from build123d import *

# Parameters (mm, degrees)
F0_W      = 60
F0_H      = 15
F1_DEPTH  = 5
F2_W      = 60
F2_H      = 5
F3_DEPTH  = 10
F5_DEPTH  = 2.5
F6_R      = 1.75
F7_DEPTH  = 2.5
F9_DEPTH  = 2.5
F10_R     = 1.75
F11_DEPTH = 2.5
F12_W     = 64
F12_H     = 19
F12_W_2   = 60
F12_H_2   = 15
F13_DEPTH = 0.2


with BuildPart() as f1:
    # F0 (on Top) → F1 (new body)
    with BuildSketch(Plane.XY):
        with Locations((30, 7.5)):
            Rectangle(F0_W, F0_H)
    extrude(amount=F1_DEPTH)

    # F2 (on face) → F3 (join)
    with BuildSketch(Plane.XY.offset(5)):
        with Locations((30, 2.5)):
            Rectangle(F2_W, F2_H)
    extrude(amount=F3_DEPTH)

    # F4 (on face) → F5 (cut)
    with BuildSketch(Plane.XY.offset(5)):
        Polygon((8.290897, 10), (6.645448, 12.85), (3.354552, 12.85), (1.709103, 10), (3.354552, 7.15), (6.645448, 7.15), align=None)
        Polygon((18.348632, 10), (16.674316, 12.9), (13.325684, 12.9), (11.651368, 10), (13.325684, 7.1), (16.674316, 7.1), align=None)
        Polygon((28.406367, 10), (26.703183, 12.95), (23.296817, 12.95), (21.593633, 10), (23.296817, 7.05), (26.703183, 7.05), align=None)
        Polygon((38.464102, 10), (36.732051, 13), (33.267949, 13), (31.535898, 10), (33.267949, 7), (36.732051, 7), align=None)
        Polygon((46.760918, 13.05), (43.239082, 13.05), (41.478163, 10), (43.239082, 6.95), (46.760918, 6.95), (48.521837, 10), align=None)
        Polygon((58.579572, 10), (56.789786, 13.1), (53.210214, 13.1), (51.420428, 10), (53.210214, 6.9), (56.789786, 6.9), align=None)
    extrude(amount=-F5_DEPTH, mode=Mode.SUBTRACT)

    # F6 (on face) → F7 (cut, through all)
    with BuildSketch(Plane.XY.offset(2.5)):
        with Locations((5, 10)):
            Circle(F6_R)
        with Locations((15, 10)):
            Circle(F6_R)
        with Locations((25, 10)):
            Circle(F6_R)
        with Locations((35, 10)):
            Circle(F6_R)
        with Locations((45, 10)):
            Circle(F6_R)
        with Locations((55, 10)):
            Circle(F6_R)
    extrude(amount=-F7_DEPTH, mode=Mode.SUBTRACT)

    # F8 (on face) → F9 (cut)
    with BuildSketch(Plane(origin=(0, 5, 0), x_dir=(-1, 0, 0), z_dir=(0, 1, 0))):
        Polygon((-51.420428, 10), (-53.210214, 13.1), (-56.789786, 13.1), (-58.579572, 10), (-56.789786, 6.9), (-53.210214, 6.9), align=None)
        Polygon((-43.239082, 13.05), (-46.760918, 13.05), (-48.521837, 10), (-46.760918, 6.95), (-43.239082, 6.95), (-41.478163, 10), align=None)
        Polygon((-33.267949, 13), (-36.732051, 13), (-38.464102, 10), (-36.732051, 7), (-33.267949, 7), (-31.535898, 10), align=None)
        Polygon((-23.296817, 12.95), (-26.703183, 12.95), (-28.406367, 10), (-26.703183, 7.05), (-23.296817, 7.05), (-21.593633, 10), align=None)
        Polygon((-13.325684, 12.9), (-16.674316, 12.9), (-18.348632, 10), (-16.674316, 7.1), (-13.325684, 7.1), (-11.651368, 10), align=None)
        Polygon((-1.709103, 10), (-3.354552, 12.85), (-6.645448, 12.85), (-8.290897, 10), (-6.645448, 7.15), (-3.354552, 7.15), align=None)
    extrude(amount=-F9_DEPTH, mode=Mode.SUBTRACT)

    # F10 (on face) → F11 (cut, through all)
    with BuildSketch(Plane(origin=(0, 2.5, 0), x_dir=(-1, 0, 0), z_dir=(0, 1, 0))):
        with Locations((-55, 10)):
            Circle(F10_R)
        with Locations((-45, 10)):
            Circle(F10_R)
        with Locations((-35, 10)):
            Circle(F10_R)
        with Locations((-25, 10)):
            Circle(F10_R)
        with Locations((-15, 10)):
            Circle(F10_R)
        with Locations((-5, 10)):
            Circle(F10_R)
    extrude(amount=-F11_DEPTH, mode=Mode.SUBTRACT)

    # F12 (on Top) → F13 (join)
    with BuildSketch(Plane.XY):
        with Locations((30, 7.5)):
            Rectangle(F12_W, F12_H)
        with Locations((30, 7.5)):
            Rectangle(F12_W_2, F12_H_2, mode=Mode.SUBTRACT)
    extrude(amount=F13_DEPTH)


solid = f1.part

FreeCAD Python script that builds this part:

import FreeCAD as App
import Part
import Sketcher
Q = App.Units.Quantity


def add_polygon(sketch, points):
    """Adds a closed chain of lines whose ends are joined by coincident constraints."""
    first, n = sketch.GeometryCount, len(points)
    for a, b in zip(points, points[1:] + points[:1]):
        sketch.addGeometry(Part.LineSegment(App.Vector(*a, 0), App.Vector(*b, 0)), False)
    for i in range(n):
        sketch.addConstraint(Sketcher.Constraint("Coincident", first + i, 2, first + (i + 1) % n, 1))

doc = App.newDocument("Part")
body = doc.addObject("PartDesign::Body", "Body")

# Sketch on XY plane
sketch1 = body.newObject("Sketcher::SketchObject", "Sketch")
sketch1.AttachmentSupport = (doc.getObject("XY_Plane"), [""])
sketch1.MapMode = "FlatFace"
add_polygon(sketch1, [(0, 15), (0, 0), (60, 0), (60, 15)])  # lines 0-3
sketch1.addConstraint([
    Sketcher.Constraint("Vertical", 0),
    Sketcher.Constraint("Horizontal", 1),
    Sketcher.Constraint("Vertical", 2),
    Sketcher.Constraint("Horizontal", 3),
    Sketcher.Constraint("Coincident", 0, 2, -1, 1),
    Sketcher.Constraint("DistanceX", 1, 1, 1, 2, Q("60 mm")),
    Sketcher.Constraint("DistanceY", 0, 2, 0, 1, Q("15 mm")),
])
pad1 = body.newObject("PartDesign::Pad", "Pad")
pad1.Profile = sketch1
pad1.Length = 5

# Sketch on XY plane
sketch2 = body.newObject("Sketcher::SketchObject", "Sketch001")
sketch2.AttachmentSupport = (doc.getObject("XY_Plane"), [""])
sketch2.MapMode = "FlatFace"
sketch2.AttachmentOffset = App.Placement(App.Vector(0, 0, 5), App.Rotation())
add_polygon(sketch2, [(0, 5), (0, 0), (60, 0), (60, 5)])  # lines 0-3
sketch2.addConstraint([
    Sketcher.Constraint("Vertical", 0),
    Sketcher.Constraint("Horizontal", 1),
    Sketcher.Constraint("Vertical", 2),
    Sketcher.Constraint("Horizontal", 3),
    Sketcher.Constraint("Coincident", 0, 2, -1, 1),
    Sketcher.Constraint("DistanceX", 1, 1, 1, 2, Q("60 mm")),
    Sketcher.Constraint("DistanceY", 0, 2, 0, 1, Q("5 mm")),
])
pad2 = body.newObject("PartDesign::Pad", "Pad001")
pad2.Profile = sketch2
pad2.Length = 10

# Sketch on XY plane
sketch3 = body.newObject("Sketcher::SketchObject", "Sketch002")
sketch3.AttachmentSupport = (doc.getObject("XY_Plane"), [""])
sketch3.MapMode = "FlatFace"
sketch3.AttachmentOffset = App.Placement(App.Vector(0, 0, 5), App.Rotation())
add_polygon(sketch3, [(8.3, 10), (6.6, 12.8), (3.4, 12.8), (1.7, 10), (3.4, 7.2), (6.6, 7.2)])  # lines 0-5
add_polygon(sketch3, [(18.3, 10), (16.7, 12.9), (13.3, 12.9), (11.7, 10), (13.3, 7.1), (16.7, 7.1)])  # lines 6-11
add_polygon(sketch3, [(28.4, 10), (26.7, 12.9), (23.3, 12.9), (21.6, 10), (23.3, 7), (26.7, 7)])  # lines 12-17
add_polygon(sketch3, [(38.5, 10), (36.7, 13), (33.3, 13), (31.5, 10), (33.3, 7), (36.7, 7)])  # lines 18-23
add_polygon(sketch3, [(46.8, 13.1), (43.2, 13.1), (41.5, 10), (43.2, 7), (46.8, 7), (48.5, 10)])  # lines 24-29
add_polygon(sketch3, [(58.6, 10), (56.8, 13.1), (53.2, 13.1), (51.4, 10), (53.2, 6.9), (56.8, 6.9)])  # lines 30-35
sketch3.addConstraint([
    Sketcher.Constraint("Horizontal", 1),
    Sketcher.Constraint("Horizontal", 4),
    Sketcher.Constraint("Horizontal", 7),
    Sketcher.Constraint("Horizontal", 10),
    Sketcher.Constraint("Horizontal", 13),
    Sketcher.Constraint("Horizontal", 16),
    Sketcher.Constraint("Horizontal", 19),
    Sketcher.Constraint("Horizontal", 22),
    Sketcher.Constraint("Horizontal", 24),
    Sketcher.Constraint("Horizontal", 27),
    Sketcher.Constraint("Horizontal", 31),
    Sketcher.Constraint("Horizontal", 34),
    Sketcher.Constraint("Parallel", 0, 3),
    Sketcher.Constraint("Parallel", 2, 5),
    Sketcher.Constraint("Parallel", 3, 6),
    Sketcher.Constraint("Parallel", 5, 8),
    Sketcher.Constraint("Parallel", 6, 9),
    Sketcher.Constraint("Parallel", 8, 11),
    Sketcher.Constraint("Parallel", 9, 12),
    Sketcher.Constraint("Parallel", 11, 14),
    Sketcher.Constraint("Parallel", 12, 15),
    Sketcher.Constraint("Parallel", 14, 17),
    Sketcher.Constraint("Parallel", 15, 18),
    Sketcher.Constraint("Parallel", 17, 20),
    Sketcher.Constraint("Parallel", 18, 21),
    Sketcher.Constraint("Parallel", 20, 23),
    Sketcher.Constraint("Parallel", 23, 25),
    Sketcher.Constraint("Parallel", 21, 26),
    Sketcher.Constraint("Parallel", 25, 28),
    Sketcher.Constraint("Parallel", 26, 29),
    Sketcher.Constraint("Parallel", 29, 30),
    Sketcher.Constraint("Parallel", 28, 32),
    Sketcher.Constraint("Parallel", 30, 33),
    Sketcher.Constraint("Parallel", 32, 35),
    Sketcher.Constraint("Horizontal", 2, 2, 5, 2),
    Sketcher.Constraint("Horizontal", 5, 2, 8, 2),
    Sketcher.Constraint("Horizontal", 8, 2, 11, 2),
    Sketcher.Constraint("Horizontal", 11, 2, 14, 2),
    Sketcher.Constraint("Horizontal", 14, 2, 17, 2),
    Sketcher.Constraint("Horizontal", 17, 2, 20, 2),
    Sketcher.Constraint("Horizontal", 20, 2, 23, 2),
    Sketcher.Constraint("Horizontal", 23, 2, 25, 2),
    Sketcher.Constraint("Horizontal", 25, 2, 28, 2),
    Sketcher.Constraint("Horizontal", 28, 2, 32, 2),
    Sketcher.Constraint("Horizontal", 32, 2, 35, 2),
    Sketcher.Constraint("Vertical", 1, 2, 3, 2),
    Sketcher.Constraint("Vertical", 0, 2, 4, 2),
    Sketcher.Constraint("Vertical", 7, 2, 9, 2),
    Sketcher.Constraint("Vertical", 13, 2, 15, 2),
    Sketcher.Constraint("Vertical", 19, 2, 21, 2),
    Sketcher.Constraint("Vertical", 24, 2, 26, 2),
    Sketcher.Constraint("Vertical", 31, 2, 33, 2),
    Sketcher.Constraint("Angle", 0, Q("120.000011 deg")),
    Sketcher.Constraint("DistanceY", -1, 1, 2, 2, Q("10 mm")),
    Sketcher.Constraint("DistanceY", -1, 1, 18, 2, Q("13 mm")),
    Sketcher.Constraint("DistanceY", -1, 1, 6, 2, Q("12.9 mm")),
    Sketcher.Constraint("DistanceY", -1, 1, 30, 2, Q("13.1 mm")),
    Sketcher.Constraint("DistanceY", 3, 2, 1, 2, Q("5.7 mm")),
    Sketcher.Constraint("DistanceY", 15, 2, 13, 2, Q("5.9 mm")),
    Sketcher.Constraint("DistanceY", 26, 2, 24, 2, Q("6.1 mm")),
    Sketcher.Constraint("DistanceX", 19, 2, 19, 1, Q("3.464102 mm")),
    Sketcher.Constraint("DistanceX", 11, 2, 14, 2, Q("3.245001 mm")),
    Sketcher.Constraint("DistanceX", 31, 2, 31, 1, Q("3.579572 mm")),
    Sketcher.Constraint("DistanceX", -1, 1, 23, 2, Q("38.464102 mm")),
    Sketcher.Constraint("DistanceX", 7, 2, 12, 2, Q("13.377499 mm")),
    Sketcher.Constraint("DistanceX", 1, 2, 1, 1, Q("3.290896 mm")),
    Sketcher.Constraint("DistanceX", 7, 2, 7, 1, Q("3.348632 mm")),
    Sketcher.Constraint("DistanceX", 24, 2, 24, 1, Q("3.521836 mm")),
    Sketcher.Constraint("DistanceX", -1, 1, 1, 2, Q("3.354552 mm")),
    Sketcher.Constraint("DistanceX", -1, 1, 11, 2, Q("18.348632 mm")),
    Sketcher.Constraint("DistanceX", 23, 2, 24, 2, Q("4.77498 mm")),
    Sketcher.Constraint("DistanceX", 28, 2, 30, 2, Q("8.267949 mm")),
])
pocket1 = body.newObject("PartDesign::Pocket", "Pocket")
pocket1.Profile = sketch3
pocket1.Length = 2.5

# Sketch on XY plane
sketch4 = body.newObject("Sketcher::SketchObject", "Sketch003")
sketch4.AttachmentSupport = (doc.getObject("XY_Plane"), [""])
sketch4.MapMode = "FlatFace"
sketch4.AttachmentOffset = App.Placement(App.Vector(0, 0, 2.5), App.Rotation())
sketch4.addGeometry([
    Part.Circle(App.Vector(5, 10, 0), App.Vector(0, 0, 1), 1.8),  # 0
    Part.Circle(App.Vector(15, 10, 0), App.Vector(0, 0, 1), 1.8),  # 1
    Part.Circle(App.Vector(25, 10, 0), App.Vector(0, 0, 1), 1.8),  # 2
    Part.Circle(App.Vector(35, 10, 0), App.Vector(0, 0, 1), 1.8),  # 3
    Part.Circle(App.Vector(45, 10, 0), App.Vector(0, 0, 1), 1.8),  # 4
    Part.Circle(App.Vector(55, 10, 0), App.Vector(0, 0, 1), 1.8),  # 5
], False)
sketch4.addConstraint([
    Sketcher.Constraint("Equal", 0, 1),
    Sketcher.Constraint("Equal", 1, 2),
    Sketcher.Constraint("Equal", 2, 3),
    Sketcher.Constraint("Equal", 3, 4),
    Sketcher.Constraint("Equal", 4, 5),
    Sketcher.Constraint("Horizontal", 0, 3, 1, 3),
    Sketcher.Constraint("Horizontal", 1, 3, 2, 3),
    Sketcher.Constraint("Horizontal", 2, 3, 3, 3),
    Sketcher.Constraint("Horizontal", 3, 3, 4, 3),
    Sketcher.Constraint("Horizontal", 4, 3, 5, 3),
    Sketcher.Constraint("Diameter", 0, Q("3.5 mm")),
    Sketcher.Constraint("DistanceX", -1, 1, 0, 3, Q("5 mm")),
    Sketcher.Constraint("DistanceY", -1, 1, 0, 3, Q("10 mm")),
    Sketcher.Constraint("DistanceX", -1, 1, 1, 3, Q("15 mm")),
    Sketcher.Constraint("DistanceX", -1, 1, 2, 3, Q("25 mm")),
    Sketcher.Constraint("DistanceX", -1, 1, 3, 3, Q("35 mm")),
    Sketcher.Constraint("DistanceX", -1, 1, 4, 3, Q("45 mm")),
    Sketcher.Constraint("DistanceX", -1, 1, 5, 3, Q("55 mm")),
])
pocket2 = body.newObject("PartDesign::Pocket", "Pocket001")
pocket2.Profile = sketch4
pocket2.Type = "ThroughAll"

# Sketch on XZ plane
sketch5 = body.newObject("Sketcher::SketchObject", "Sketch004")
sketch5.AttachmentSupport = (doc.getObject("XZ_Plane"), [""])
sketch5.MapMode = "FlatFace"
sketch5.AttachmentOffset = App.Placement(App.Vector(0, 0, -5), App.Rotation())
add_polygon(sketch5, [(51.4, 10), (53.2, 13.1), (56.8, 13.1), (58.6, 10), (56.8, 6.9), (53.2, 6.9)])  # lines 0-5
add_polygon(sketch5, [(43.2, 13.1), (46.8, 13.1), (48.5, 10), (46.8, 7), (43.2, 7), (41.5, 10)])  # lines 6-11
add_polygon(sketch5, [(33.3, 13), (36.7, 13), (38.5, 10), (36.7, 7), (33.3, 7), (31.5, 10)])  # lines 12-17
add_polygon(sketch5, [(23.3, 12.9), (26.7, 12.9), (28.4, 10), (26.7, 7), (23.3, 7), (21.6, 10)])  # lines 18-23
add_polygon(sketch5, [(13.3, 12.9), (16.7, 12.9), (18.3, 10), (16.7, 7.1), (13.3, 7.1), (11.7, 10)])  # lines 24-29
add_polygon(sketch5, [(1.7, 10), (3.4, 12.8), (6.6, 12.8), (8.3, 10), (6.6, 7.2), (3.4, 7.2)])  # lines 30-35
sketch5.addConstraint([
    Sketcher.Constraint("Horizontal", 1),
    Sketcher.Constraint("Horizontal", 4),
    Sketcher.Constraint("Horizontal", 6),
    Sketcher.Constraint("Horizontal", 9),
    Sketcher.Constraint("Horizontal", 12),
    Sketcher.Constraint("Horizontal", 15),
    Sketcher.Constraint("Horizontal", 18),
    Sketcher.Constraint("Horizontal", 21),
    Sketcher.Constraint("Horizontal", 24),
    Sketcher.Constraint("Horizontal", 27),
    Sketcher.Constraint("Horizontal", 31),
    Sketcher.Constraint("Horizontal", 34),
    Sketcher.Constraint("Parallel", 0, 3),
    Sketcher.Constraint("Parallel", 2, 5),
    Sketcher.Constraint("Parallel", 5, 7),
    Sketcher.Constraint("Parallel", 3, 8),
    Sketcher.Constraint("Parallel", 7, 10),
    Sketcher.Constraint("Parallel", 8, 11),
    Sketcher.Constraint("Parallel", 10, 13),
    Sketcher.Constraint("Parallel", 11, 14),
    Sketcher.Constraint("Parallel", 13, 16),
    Sketcher.Constraint("Parallel", 14, 17),
    Sketcher.Constraint("Parallel", 16, 19),
    Sketcher.Constraint("Parallel", 17, 20),
    Sketcher.Constraint("Parallel", 19, 22),
    Sketcher.Constraint("Parallel", 20, 23),
    Sketcher.Constraint("Parallel", 22, 25),
    Sketcher.Constraint("Parallel", 23, 26),
    Sketcher.Constraint("Parallel", 25, 28),
    Sketcher.Constraint("Parallel", 26, 29),
    Sketcher.Constraint("Parallel", 29, 30),
    Sketcher.Constraint("Parallel", 28, 32),
    Sketcher.Constraint("Parallel", 30, 33),
    Sketcher.Constraint("Parallel", 32, 35),
    Sketcher.Constraint("Horizontal", 2, 2, 5, 2),
    Sketcher.Constraint("Horizontal", 5, 2, 7, 2),
    Sketcher.Constraint("Horizontal", 7, 2, 10, 2),
    Sketcher.Constraint("Horizontal", 10, 2, 13, 2),
    Sketcher.Constraint("Horizontal", 13, 2, 16, 2),
    Sketcher.Constraint("Horizontal", 16, 2, 19, 2),
    Sketcher.Constraint("Horizontal", 19, 2, 22, 2),
    Sketcher.Constraint("Horizontal", 22, 2, 25, 2),
    Sketcher.Constraint("Horizontal", 25, 2, 28, 2),
    Sketcher.Constraint("Horizontal", 28, 2, 32, 2),
    Sketcher.Constraint("Horizontal", 32, 2, 35, 2),
    Sketcher.Constraint("Vertical", 1, 2, 3, 2),
    Sketcher.Constraint("Vertical", 0, 2, 4, 2),
    Sketcher.Constraint("Vertical", 6, 2, 8, 2),
    Sketcher.Constraint("Vertical", 12, 2, 14, 2),
    Sketcher.Constraint("Vertical", 18, 2, 20, 2),
    Sketcher.Constraint("Vertical", 24, 2, 26, 2),
    Sketcher.Constraint("Vertical", 31, 2, 33, 2),
    Sketcher.Constraint("Angle", 0, Q("59.999998 deg")),
    Sketcher.Constraint("DistanceY", -1, 1, 2, 2, Q("10 mm")),
    Sketcher.Constraint("DistanceY", -1, 1, 12, 2, Q("13 mm")),
    Sketcher.Constraint("DistanceY", -1, 1, 0, 2, Q("13.1 mm")),
    Sketcher.Constraint("DistanceY", -1, 1, 24, 2, Q("12.9 mm")),
    Sketcher.Constraint("DistanceY", 8, 2, 6, 2, Q("6.1 mm")),
    Sketcher.Constraint("DistanceY", 20, 2, 18, 2, Q("5.9 mm")),
    Sketcher.Constraint("DistanceY", 33, 2, 31, 2, Q("5.7 mm")),
    Sketcher.Constraint("DistanceX", 12, 1, 12, 2, Q("3.464102 mm")),
    Sketcher.Constraint("DistanceX", 25, 2, 22, 2, Q("3.245001 mm")),
    Sketcher.Constraint("DistanceX", 1, 1, 1, 2, Q("3.579572 mm")),
    Sketcher.Constraint("DistanceX", -1, 1, 13, 2, Q("38.464102 mm")),
    Sketcher.Constraint("DistanceX", 6, 1, 6, 2, Q("3.521836 mm")),
    Sketcher.Constraint("DistanceX", 18, 1, 18, 2, Q("3.406366 mm")),
    Sketcher.Constraint("DistanceX", 24, 1, 24, 2, Q("3.348632 mm")),
    Sketcher.Constraint("DistanceX", 31, 1, 31, 2, Q("3.290896 mm")),
    Sketcher.Constraint("DistanceX", -1, 1, 25, 2, Q("18.348632 mm")),
    Sketcher.Constraint("DistanceX", -1, 1, 30, 2, Q("3.354552 mm")),
    Sketcher.Constraint("DistanceX", 6, 2, 5, 2, Q("4.65951 mm")),
    Sketcher.Constraint("DistanceX", 12, 2, 11, 2, Q("6.507031 mm")),
])
pocket3 = body.newObject("PartDesign::Pocket", "Pocket002")
pocket3.Profile = sketch5
pocket3.Length = 2.5
pocket3.Reversed = True

# Sketch on XZ plane
sketch6 = body.newObject("Sketcher::SketchObject", "Sketch005")
sketch6.AttachmentSupport = (doc.getObject("XZ_Plane"), [""])
sketch6.MapMode = "FlatFace"
sketch6.AttachmentOffset = App.Placement(App.Vector(0, 0, -2.5), App.Rotation())
sketch6.addGeometry([
    Part.Circle(App.Vector(55, 10, 0), App.Vector(0, 0, 1), 1.8),  # 0
    Part.Circle(App.Vector(45, 10, 0), App.Vector(0, 0, 1), 1.8),  # 1
    Part.Circle(App.Vector(35, 10, 0), App.Vector(0, 0, 1), 1.8),  # 2
    Part.Circle(App.Vector(25, 10, 0), App.Vector(0, 0, 1), 1.8),  # 3
    Part.Circle(App.Vector(15, 10, 0), App.Vector(0, 0, 1), 1.8),  # 4
    Part.Circle(App.Vector(5, 10, 0), App.Vector(0, 0, 1), 1.8),  # 5
], False)
sketch6.addConstraint([
    Sketcher.Constraint("Equal", 0, 1),
    Sketcher.Constraint("Equal", 1, 2),
    Sketcher.Constraint("Equal", 2, 3),
    Sketcher.Constraint("Equal", 3, 4),
    Sketcher.Constraint("Equal", 4, 5),
    Sketcher.Constraint("Horizontal", 0, 3, 1, 3),
    Sketcher.Constraint("Horizontal", 1, 3, 2, 3),
    Sketcher.Constraint("Horizontal", 2, 3, 3, 3),
    Sketcher.Constraint("Horizontal", 3, 3, 4, 3),
    Sketcher.Constraint("Horizontal", 4, 3, 5, 3),
    Sketcher.Constraint("Diameter", 0, Q("3.5 mm")),
    Sketcher.Constraint("DistanceX", -1, 1, 0, 3, Q("55 mm")),
    Sketcher.Constraint("DistanceY", -1, 1, 0, 3, Q("10 mm")),
    Sketcher.Constraint("DistanceX", -1, 1, 1, 3, Q("45 mm")),
    Sketcher.Constraint("DistanceX", -1, 1, 2, 3, Q("35 mm")),
    Sketcher.Constraint("DistanceX", -1, 1, 3, 3, Q("25 mm")),
    Sketcher.Constraint("DistanceX", -1, 1, 4, 3, Q("15 mm")),
    Sketcher.Constraint("DistanceX", -1, 1, 5, 3, Q("5 mm")),
])
pocket4 = body.newObject("PartDesign::Pocket", "Pocket003")
pocket4.Profile = sketch6
pocket4.Type = "ThroughAll"
pocket4.Reversed = True

# Sketch on XY plane
sketch7 = body.newObject("Sketcher::SketchObject", "Sketch006")
sketch7.AttachmentSupport = (doc.getObject("XY_Plane"), [""])
sketch7.MapMode = "FlatFace"
add_polygon(sketch7, [(-2, 17), (-2, -2), (62, -2), (62, 17)])  # lines 0-3
add_polygon(sketch7, [(60, 0), (0, 0), (0, 15), (60, 15)])  # lines 4-7
sketch7.addConstraint([
    Sketcher.Constraint("Vertical", 0),
    Sketcher.Constraint("Horizontal", 1),
    Sketcher.Constraint("Vertical", 2),
    Sketcher.Constraint("Horizontal", 3),
    Sketcher.Constraint("Horizontal", 4),
    Sketcher.Constraint("Vertical", 5),
    Sketcher.Constraint("Horizontal", 6),
    Sketcher.Constraint("Vertical", 7),
    Sketcher.Constraint("Coincident", 4, 2, -1, 1),
    Sketcher.Constraint("DistanceX", 1, 1, 1, 2, Q("64 mm")),
    Sketcher.Constraint("DistanceX", 4, 2, 4, 1, Q("60 mm")),
    Sketcher.Constraint("DistanceY", 0, 2, 0, 1, Q("19 mm")),
    Sketcher.Constraint("DistanceY", 5, 1, 5, 2, Q("15 mm")),
    Sketcher.Constraint("DistanceX", 0, 2, -1, 1, Q("2 mm")),
    Sketcher.Constraint("DistanceY", 0, 2, -1, 1, Q("2 mm")),
])
pad3 = body.newObject("PartDesign::Pad", "Pad002")
pad3.Profile = sketch7
pad3.Length = 0.2

doc.recompute()
